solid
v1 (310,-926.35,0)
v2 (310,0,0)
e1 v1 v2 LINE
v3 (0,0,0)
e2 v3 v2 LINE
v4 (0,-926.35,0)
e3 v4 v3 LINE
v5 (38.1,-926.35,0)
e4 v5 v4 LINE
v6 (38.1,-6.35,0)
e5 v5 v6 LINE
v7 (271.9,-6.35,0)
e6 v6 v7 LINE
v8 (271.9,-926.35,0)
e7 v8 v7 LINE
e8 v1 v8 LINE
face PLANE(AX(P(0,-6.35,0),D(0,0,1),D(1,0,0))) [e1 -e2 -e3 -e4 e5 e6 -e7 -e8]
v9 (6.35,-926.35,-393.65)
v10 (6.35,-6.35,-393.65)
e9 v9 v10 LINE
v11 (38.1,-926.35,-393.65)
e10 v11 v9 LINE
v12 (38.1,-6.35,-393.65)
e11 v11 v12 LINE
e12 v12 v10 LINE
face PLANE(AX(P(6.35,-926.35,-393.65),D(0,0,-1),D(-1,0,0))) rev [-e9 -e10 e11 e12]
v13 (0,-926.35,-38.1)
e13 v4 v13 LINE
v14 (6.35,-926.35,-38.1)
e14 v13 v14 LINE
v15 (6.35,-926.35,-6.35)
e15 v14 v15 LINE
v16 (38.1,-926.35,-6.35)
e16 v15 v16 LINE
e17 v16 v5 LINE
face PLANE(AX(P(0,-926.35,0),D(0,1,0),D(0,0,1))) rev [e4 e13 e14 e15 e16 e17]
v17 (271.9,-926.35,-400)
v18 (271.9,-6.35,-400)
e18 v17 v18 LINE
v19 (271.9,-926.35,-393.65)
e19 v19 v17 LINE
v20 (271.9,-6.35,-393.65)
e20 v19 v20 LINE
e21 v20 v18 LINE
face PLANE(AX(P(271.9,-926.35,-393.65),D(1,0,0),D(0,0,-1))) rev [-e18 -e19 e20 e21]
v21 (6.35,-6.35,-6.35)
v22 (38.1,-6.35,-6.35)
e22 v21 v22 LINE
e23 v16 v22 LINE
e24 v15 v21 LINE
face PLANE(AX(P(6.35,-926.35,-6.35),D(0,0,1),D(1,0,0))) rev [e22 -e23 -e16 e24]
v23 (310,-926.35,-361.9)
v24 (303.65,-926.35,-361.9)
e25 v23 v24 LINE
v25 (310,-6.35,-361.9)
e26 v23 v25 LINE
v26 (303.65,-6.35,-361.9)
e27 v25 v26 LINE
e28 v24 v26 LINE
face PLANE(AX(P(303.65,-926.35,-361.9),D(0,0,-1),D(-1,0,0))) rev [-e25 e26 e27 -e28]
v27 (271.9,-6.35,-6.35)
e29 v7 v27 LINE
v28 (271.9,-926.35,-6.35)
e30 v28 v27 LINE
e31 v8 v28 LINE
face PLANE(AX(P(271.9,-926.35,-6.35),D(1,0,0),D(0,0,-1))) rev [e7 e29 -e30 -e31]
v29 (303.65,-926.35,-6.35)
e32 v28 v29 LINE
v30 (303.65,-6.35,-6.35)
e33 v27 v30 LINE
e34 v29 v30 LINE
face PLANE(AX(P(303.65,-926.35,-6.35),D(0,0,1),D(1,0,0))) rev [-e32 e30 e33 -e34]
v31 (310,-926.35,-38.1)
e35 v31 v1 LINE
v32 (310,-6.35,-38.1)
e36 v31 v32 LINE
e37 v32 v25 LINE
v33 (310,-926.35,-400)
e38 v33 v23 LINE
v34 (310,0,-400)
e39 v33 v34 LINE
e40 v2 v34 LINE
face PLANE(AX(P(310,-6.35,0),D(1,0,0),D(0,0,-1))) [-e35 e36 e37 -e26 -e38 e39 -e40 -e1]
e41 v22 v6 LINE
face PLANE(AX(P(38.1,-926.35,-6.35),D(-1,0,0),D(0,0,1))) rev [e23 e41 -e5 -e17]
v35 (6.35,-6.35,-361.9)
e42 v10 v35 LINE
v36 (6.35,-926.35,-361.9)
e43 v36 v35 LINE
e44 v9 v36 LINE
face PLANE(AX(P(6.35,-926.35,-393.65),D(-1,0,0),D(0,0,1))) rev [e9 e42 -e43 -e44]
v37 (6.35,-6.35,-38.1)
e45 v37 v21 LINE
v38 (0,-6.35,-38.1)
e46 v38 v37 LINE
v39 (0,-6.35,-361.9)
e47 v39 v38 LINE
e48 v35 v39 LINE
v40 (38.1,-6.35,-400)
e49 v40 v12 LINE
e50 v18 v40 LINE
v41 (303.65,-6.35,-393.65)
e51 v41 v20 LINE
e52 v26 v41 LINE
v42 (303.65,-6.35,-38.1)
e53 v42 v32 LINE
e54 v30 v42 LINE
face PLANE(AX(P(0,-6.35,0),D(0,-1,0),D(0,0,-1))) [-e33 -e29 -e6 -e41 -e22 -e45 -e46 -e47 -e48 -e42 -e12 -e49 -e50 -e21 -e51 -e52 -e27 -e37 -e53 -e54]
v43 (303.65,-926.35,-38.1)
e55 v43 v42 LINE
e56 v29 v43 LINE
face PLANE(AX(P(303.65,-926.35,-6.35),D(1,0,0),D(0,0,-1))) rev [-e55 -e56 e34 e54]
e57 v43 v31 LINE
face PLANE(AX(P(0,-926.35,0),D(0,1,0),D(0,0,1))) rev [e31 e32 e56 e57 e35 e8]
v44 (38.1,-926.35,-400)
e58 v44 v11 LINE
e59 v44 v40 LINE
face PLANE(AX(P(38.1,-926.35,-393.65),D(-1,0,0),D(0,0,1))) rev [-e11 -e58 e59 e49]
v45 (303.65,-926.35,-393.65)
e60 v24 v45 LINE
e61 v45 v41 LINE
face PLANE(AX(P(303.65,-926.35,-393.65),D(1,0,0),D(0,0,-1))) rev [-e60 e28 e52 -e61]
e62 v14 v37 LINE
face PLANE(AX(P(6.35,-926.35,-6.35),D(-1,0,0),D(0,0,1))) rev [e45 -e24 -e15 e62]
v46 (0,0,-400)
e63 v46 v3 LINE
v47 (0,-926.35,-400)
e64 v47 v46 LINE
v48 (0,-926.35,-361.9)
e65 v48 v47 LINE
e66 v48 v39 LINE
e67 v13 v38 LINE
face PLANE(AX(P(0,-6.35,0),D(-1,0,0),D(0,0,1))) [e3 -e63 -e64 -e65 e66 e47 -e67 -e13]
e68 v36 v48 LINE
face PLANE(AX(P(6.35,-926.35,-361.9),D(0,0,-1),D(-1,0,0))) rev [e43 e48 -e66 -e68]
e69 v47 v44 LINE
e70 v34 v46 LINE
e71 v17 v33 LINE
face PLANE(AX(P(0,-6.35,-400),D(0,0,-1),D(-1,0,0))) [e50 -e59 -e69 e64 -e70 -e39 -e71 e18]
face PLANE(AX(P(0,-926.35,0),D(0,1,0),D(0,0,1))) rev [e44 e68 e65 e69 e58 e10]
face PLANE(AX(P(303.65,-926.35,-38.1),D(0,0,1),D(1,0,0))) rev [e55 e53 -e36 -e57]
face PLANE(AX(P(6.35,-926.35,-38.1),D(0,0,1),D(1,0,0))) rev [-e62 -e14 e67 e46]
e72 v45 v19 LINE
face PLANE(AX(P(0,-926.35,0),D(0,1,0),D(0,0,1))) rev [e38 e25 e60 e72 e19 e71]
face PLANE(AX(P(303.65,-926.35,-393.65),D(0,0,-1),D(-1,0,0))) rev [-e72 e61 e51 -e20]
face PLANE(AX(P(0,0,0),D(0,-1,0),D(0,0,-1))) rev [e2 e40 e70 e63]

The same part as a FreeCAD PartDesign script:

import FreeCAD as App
import Part
import Sketcher
Q = App.Units.Quantity


def add_polygon(sketch, points):
    """Adds a closed chain of lines whose ends are joined by coincident constraints."""
    first, n = sketch.GeometryCount, len(points)
    for a, b in zip(points, points[1:] + points[:1]):
        sketch.addGeometry(Part.LineSegment(App.Vector(*a, 0), App.Vector(*b, 0)), False)
    for i in range(n):
        sketch.addConstraint(Sketcher.Constraint("Coincident", first + i, 2, first + (i + 1) % n, 1))

doc = App.newDocument("Part")
params = doc.addObject("Spreadsheet::Sheet", "Params")
for row, (alias, value) in enumerate([
    ("sketch1_width", "310 mm"),
    ("sketch1_height", "400 mm"),
    ("pad1_length", "6.35 mm"),
    ("sketch2_width", "38.1 mm"),
    ("sketch2_width2", "6.35 mm"),
    ("pad2_length", "920 mm"),
], start=1):
    params.set(f"A{row}", alias)
    params.set(f"B{row}", "=" + value)
    params.setAlias(f"B{row}", alias)

body = doc.addObject("PartDesign::Body", "Body")

# Sketch on XZ plane
sketch1 = body.newObject("Sketcher::SketchObject", "Sketch")
sketch1.AttachmentSupport = (doc.getObject("XZ_Plane"), [""])
sketch1.MapMode = "FlatFace"
add_polygon(sketch1, [(0, -400), (0, 0), (310, 0), (310, -400)])  # lines 0-3
sketch1.addConstraint(Sketcher.Constraint("Vertical", 0))
sketch1.addConstraint(Sketcher.Constraint("Horizontal", 1))
sketch1.addConstraint(Sketcher.Constraint("Vertical", 2))
sketch1.addConstraint(Sketcher.Constraint("Horizontal", 3))
sketch1.addConstraint(Sketcher.Constraint("Coincident", 0, 2, -1, 1))
sketch1.addConstraint(Sketcher.Constraint("DistanceX", 1, 1, 1, 2, Q("310 mm")))
sketch1.addConstraint(Sketcher.Constraint("DistanceY", 0, 1, 0, 2, Q("400 mm")))
sketch1.setExpression("Constraints[9]", "Params.sketch1_width")
sketch1.setExpression("Constraints[10]", "Params.sketch1_height")
pad1 = body.newObject("PartDesign::Pad", "Pad")
pad1.Profile = sketch1
pad1.setExpression("Length", "Params.pad1_length")

# Sketch on XZ plane
sketch2 = body.newObject("Sketcher::SketchObject", "Sketch001")
sketch2.AttachmentSupport = (doc.getObject("XZ_Plane"), [""])
sketch2.MapMode = "FlatFace"
sketch2.AttachmentOffset = App.Placement(App.Vector(0, 0, 6.35), App.Rotation())
add_polygon(sketch2, [(38, 0), (0, 0), (0, -38), (6, -38), (6, -6), (38, -6)])  # lines 0-5
add_polygon(sketch2, [(304, -38), (310, -38), (310, 0), (272, 0), (272, -6), (304, -6)])  # lines 6-11
add_polygon(sketch2, [(272, -400), (310, -400), (310, -362), (304, -362), (304, -394), (272, -394)])  # lines 12-17
add_polygon(sketch2, [(6, -362), (0, -362), (0, -400), (38, -400), (38, -394), (6, -394)])  # lines 18-23
sketch2.addConstraint(Sketcher.Constraint("Horizontal", 0))
sketch2.addConstraint(Sketcher.Constraint("Vertical", 1))
sketch2.addConstraint(Sketcher.Constraint("Horizontal", 2))
sketch2.addConstraint(Sketcher.Constraint("Vertical", 3))
sketch2.addConstraint(Sketcher.Constraint("Horizontal", 4))
sketch2.addConstraint(Sketcher.Constraint("Vertical", 5))
sketch2.addConstraint(Sketcher.Constraint("Horizontal", 6))
sketch2.addConstraint(Sketcher.Constraint("Vertical", 7))
sketch2.addConstraint(Sketcher.Constraint("Horizontal", 8))
sketch2.addConstraint(Sketcher.Constraint("Vertical", 9))
sketch2.addConstraint(Sketcher.Constraint("Horizontal", 10))
sketch2.addConstraint(Sketcher.Constraint("Vertical", 11))
sketch2.addConstraint(Sketcher.Constraint("Horizontal", 12))
sketch2.addConstraint(Sketcher.Constraint("Vertical", 13))
sketch2.addConstraint(Sketcher.Constraint("Horizontal", 14))
sketch2.addConstraint(Sketcher.Constraint("Vertical", 15))
sketch2.addConstraint(Sketcher.Constraint("Horizontal", 16))
sketch2.addConstraint(Sketcher.Constraint("Vertical", 17))
sketch2.addConstraint(Sketcher.Constraint("Horizontal", 18))
sketch2.addConstraint(Sketcher.Constraint("Vertical", 19))
sketch2.addConstraint(Sketcher.Constraint("Horizontal", 20))
sketch2.addConstraint(Sketcher.Constraint("Vertical", 21))
sketch2.addConstraint(Sketcher.Constraint("Horizontal", 22))
sketch2.addConstraint(Sketcher.Constraint("Vertical", 23))
sketch2.addConstraint(Sketcher.Constraint("Coincident", 0, 2, -1, 1))
sketch2.addConstraint(Sketcher.Constraint("PointOnObject", 7, 2, -1))
sketch2.addConstraint(Sketcher.Constraint("PointOnObject", 18, 2, -2))
sketch2.addConstraint(Sketcher.Constraint("Horizontal", 2, 2, 6, 2))
sketch2.addConstraint(Sketcher.Constraint("Horizontal", 4, 2, 9, 2))
sketch2.addConstraint(Sketcher.Constraint("Horizontal", 14, 2, 18, 2))
sketch2.addConstraint(Sketcher.Constraint("Horizontal", 17, 2, 19, 2))
sketch2.addConstraint(Sketcher.Constraint("Horizontal", 16, 2, 21, 2))
sketch2.addConstraint(Sketcher.Constraint("Vertical", 7, 2, 12, 2))
sketch2.addConstraint(Sketcher.Constraint("Vertical", 11, 2, 14, 2))
sketch2.addConstraint(Sketcher.Constraint("Vertical", 9, 2, 16, 2))
sketch2.addConstraint(Sketcher.Constraint("Vertical", 5, 2, 20, 2))
sketch2.addConstraint(Sketcher.Constraint("Vertical", 3, 2, 22, 2))
sketch2.addConstraint(Sketcher.Constraint("Equal", 2, 6))
sketch2.addConstraint(Sketcher.Constraint("Equal", 0, 8))
sketch2.addConstraint(Sketcher.Constraint("Equal", 20, 1))
sketch2.addConstraint(Sketcher.Constraint("Equal", 22, 3))
sketch2.addConstraint(Sketcher.Constraint("Equal", 7, 13))
sketch2.addConstraint(Sketcher.Constraint("Equal", 11, 15))
sketch2.addConstraint(Sketcher.Constraint("DistanceX", 0, 2, 0, 1, Q("38.1 mm")))
sketch2.addConstraint(Sketcher.Constraint("DistanceX", -1, 1, 6, 2, Q("310 mm")))
sketch2.addConstraint(Sketcher.Constraint("DistanceY", 12, 2, -1, 1, Q("400 mm")))
sketch2.addConstraint(Sketcher.Constraint("DistanceX", 2, 1, 2, 2, Q("6.35 mm")))
sketch2.setExpression("Constraints[67]", "Params.sketch2_width")
sketch2.setExpression("Constraints[70]", "Params.sketch2_width2")
pad2 = body.newObject("PartDesign::Pad", "Pad001")
pad2.Profile = sketch2
pad2.setExpression("Length", "Params.pad2_length")

doc.recompute()
